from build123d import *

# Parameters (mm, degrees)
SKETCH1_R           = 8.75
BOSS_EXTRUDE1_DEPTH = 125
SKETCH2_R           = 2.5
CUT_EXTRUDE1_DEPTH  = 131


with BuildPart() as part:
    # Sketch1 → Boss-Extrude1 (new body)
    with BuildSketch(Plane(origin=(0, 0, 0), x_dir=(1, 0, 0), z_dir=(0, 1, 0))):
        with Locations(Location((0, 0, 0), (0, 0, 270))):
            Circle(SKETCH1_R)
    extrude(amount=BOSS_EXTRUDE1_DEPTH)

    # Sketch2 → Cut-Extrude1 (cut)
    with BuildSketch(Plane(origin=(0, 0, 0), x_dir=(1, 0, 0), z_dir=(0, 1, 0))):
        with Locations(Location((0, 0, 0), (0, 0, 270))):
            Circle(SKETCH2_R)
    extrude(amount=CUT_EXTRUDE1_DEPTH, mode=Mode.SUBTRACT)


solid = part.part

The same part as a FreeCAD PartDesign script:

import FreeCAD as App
import Part
import Sketcher

V = App.Vector
Q = App.Units.Quantity

doc = App.newDocument("Part")
body = doc.addObject("PartDesign::Body", "Body")

sketch1 = body.newObject("Sketcher::SketchObject", "Sketch")
sketch1.AttachmentSupport = (doc.getObject("XZ_Plane"), [""])
sketch1.MapMode = "FlatFace"
sketch1.addGeometry(Part.Circle(V(0, 0, 0), V(0, 0, 1), 9), False)
sketch1.addConstraint([
    Sketcher.Constraint("Coincident", 0, 3, -1, 1),
    Sketcher.Constraint("Diameter", 0, Q("17.5 mm")),
])
pad1 = body.newObject("PartDesign::Pad", "Pad")
pad1.Profile = sketch1
pad1.Length = 125
pad1.Reversed = True

sketch2 = body.newObject("Sketcher::SketchObject", "Sketch001")
sketch2.AttachmentSupport = (doc.getObject("XZ_Plane"), [""])
sketch2.MapMode = "FlatFace"
sketch2.addGeometry(Part.Circle(V(0, 0, 0), V(0, 0, 1), 2.5), False)
sketch2.addConstraint([
    Sketcher.Constraint("Coincident", 0, 3, -1, 1),
    Sketcher.Constraint("Diameter", 0, Q("5 mm")),
])
pocket1 = body.newObject("PartDesign::Pocket", "Pocket")
pocket1.Profile = sketch2
pocket1.Length = 131

doc.recompute()
